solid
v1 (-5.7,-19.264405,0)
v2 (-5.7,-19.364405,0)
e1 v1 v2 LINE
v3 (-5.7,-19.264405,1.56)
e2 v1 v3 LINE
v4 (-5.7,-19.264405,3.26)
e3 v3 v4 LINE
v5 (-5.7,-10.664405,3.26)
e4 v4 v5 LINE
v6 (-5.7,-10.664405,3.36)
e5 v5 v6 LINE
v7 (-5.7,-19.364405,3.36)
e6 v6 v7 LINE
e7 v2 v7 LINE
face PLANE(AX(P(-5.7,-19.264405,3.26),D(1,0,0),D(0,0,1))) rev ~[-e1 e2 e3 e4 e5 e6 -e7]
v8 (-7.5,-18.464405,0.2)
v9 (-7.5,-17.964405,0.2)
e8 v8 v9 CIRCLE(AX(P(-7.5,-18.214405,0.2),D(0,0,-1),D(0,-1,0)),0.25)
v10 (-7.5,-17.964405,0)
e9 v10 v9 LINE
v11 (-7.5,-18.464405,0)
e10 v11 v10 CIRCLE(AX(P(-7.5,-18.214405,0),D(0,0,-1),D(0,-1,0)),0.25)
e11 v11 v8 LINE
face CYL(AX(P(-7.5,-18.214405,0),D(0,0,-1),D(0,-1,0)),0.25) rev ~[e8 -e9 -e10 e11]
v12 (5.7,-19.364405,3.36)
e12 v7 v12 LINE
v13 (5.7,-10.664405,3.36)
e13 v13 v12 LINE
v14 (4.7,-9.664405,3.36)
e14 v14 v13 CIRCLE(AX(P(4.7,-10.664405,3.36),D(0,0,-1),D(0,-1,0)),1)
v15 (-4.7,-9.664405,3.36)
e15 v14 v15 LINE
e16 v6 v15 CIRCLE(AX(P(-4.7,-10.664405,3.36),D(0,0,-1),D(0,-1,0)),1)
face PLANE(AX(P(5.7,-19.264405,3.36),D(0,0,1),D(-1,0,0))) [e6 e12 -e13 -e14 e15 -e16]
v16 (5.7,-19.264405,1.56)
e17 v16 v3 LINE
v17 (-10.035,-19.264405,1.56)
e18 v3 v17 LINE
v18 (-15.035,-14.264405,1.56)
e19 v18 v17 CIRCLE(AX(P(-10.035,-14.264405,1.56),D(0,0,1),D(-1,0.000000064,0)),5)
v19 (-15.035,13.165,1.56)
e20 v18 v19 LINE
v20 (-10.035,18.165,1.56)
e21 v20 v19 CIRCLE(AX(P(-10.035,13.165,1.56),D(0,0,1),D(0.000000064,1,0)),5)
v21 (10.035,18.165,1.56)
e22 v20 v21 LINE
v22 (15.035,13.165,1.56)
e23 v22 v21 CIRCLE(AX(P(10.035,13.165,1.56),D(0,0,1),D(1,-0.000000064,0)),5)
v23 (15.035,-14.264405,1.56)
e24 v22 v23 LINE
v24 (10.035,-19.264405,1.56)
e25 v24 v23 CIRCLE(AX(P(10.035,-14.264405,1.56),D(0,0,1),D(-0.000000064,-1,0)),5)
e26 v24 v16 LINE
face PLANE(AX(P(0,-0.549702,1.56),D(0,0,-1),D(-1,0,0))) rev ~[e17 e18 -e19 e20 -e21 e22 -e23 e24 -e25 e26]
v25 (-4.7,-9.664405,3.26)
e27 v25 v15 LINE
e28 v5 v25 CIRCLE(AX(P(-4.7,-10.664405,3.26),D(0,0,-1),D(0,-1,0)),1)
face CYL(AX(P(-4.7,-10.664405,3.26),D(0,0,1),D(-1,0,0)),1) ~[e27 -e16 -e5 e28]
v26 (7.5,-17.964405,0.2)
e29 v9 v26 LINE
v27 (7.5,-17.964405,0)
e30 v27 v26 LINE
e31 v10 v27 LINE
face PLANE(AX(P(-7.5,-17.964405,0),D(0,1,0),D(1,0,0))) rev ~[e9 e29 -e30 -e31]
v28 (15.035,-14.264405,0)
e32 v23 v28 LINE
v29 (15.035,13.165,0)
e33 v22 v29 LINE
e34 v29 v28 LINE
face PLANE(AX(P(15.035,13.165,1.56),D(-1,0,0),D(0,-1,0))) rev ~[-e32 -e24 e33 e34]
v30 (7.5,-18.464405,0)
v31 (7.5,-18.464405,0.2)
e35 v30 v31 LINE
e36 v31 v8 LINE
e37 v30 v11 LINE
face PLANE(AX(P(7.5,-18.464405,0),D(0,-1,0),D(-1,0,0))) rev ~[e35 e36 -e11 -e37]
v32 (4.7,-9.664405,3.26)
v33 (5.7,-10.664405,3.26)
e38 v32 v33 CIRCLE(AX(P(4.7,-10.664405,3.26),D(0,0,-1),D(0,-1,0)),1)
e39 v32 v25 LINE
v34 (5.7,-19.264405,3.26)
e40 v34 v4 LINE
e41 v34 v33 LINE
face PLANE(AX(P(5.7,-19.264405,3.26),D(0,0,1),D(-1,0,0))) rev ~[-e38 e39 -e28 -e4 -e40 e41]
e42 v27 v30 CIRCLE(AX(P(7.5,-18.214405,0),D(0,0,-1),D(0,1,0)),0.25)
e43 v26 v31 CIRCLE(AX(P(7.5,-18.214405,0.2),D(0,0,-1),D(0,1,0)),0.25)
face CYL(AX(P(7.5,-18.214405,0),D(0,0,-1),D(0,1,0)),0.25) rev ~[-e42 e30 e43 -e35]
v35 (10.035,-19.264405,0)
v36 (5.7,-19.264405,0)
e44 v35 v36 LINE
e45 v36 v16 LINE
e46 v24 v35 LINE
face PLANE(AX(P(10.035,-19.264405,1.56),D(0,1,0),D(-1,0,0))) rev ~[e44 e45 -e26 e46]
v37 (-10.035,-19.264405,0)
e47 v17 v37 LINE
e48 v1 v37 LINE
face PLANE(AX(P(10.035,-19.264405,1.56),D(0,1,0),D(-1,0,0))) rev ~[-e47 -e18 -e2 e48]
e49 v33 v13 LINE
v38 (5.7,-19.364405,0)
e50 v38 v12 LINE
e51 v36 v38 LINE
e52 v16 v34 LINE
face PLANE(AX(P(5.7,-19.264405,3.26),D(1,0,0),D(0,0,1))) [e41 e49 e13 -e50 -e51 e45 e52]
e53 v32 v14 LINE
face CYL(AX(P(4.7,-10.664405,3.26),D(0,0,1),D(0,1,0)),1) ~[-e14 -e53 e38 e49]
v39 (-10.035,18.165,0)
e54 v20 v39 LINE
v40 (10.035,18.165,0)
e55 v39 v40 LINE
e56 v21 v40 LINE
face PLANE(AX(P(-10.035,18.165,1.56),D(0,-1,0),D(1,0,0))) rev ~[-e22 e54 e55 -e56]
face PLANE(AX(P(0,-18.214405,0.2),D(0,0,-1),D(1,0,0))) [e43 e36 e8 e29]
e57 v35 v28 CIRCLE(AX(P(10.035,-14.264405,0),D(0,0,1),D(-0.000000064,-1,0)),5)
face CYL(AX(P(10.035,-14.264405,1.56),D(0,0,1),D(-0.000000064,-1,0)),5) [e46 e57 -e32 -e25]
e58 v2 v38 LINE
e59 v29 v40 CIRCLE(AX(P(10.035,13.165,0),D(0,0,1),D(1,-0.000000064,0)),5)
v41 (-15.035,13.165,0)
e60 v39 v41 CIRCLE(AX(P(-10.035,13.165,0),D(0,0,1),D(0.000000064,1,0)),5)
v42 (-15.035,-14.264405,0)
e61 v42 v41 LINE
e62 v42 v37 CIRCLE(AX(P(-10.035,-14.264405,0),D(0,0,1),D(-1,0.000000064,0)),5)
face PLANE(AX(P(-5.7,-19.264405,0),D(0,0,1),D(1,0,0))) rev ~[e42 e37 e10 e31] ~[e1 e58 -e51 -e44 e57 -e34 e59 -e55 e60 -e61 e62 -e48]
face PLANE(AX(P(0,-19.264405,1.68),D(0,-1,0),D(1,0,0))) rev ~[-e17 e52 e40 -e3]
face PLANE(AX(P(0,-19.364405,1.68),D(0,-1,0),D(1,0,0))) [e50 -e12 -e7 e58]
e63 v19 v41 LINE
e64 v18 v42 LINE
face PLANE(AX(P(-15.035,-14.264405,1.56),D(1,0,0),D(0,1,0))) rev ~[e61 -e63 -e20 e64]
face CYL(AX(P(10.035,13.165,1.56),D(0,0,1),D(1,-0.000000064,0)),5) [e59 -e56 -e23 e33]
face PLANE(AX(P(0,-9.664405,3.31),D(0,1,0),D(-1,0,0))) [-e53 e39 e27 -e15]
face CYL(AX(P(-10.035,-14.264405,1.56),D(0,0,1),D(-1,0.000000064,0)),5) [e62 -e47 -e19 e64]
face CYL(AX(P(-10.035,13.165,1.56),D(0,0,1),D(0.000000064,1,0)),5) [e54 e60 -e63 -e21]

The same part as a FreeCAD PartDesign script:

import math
import FreeCAD as App
import Part
import Sketcher
Q = App.Units.Quantity


def edges_at(feature, points):
    """Names of the edges that pass closest to the given points."""
    edges = feature.Shape.Edges
    near = lambda p: min(range(len(edges)), key=lambda i: edges[i].distToShape(Part.Vertex(*p))[0])
    return sorted({f"Edge{near(p) + 1}" for p in points})

doc = App.newDocument("Part")
body = doc.addObject("PartDesign::Body", "Body")

sketch1 = doc.addObject("Sketcher::SketchObject", "Sketch")
body.addObject(sketch1)
sketch1.AttachmentSupport = (doc.XY_Plane, [""])
sketch1.MapMode = "FlatFace"
sketch1.addGeometry([
    Part.LineSegment(App.Vector(10, 17.2, 0), App.Vector(-10, 17.2, 0)),
    Part.ArcOfCircle(Part.Circle(App.Vector(-10, 13.2, 0), App.Vector(0, 0, 1), 4), math.radians(90), math.radians(180)),
    Part.LineSegment(App.Vector(-14, 13.2, 0), App.Vector(-14, -13.2, 0)),
    Part.ArcOfCircle(Part.Circle(App.Vector(-10, -13.2, 0), App.Vector(0, 0, 1), 4), math.radians(-180), math.radians(-90)),
    Part.LineSegment(App.Vector(-10, -17.2, 0), App.Vector(10, -17.2, 0)),
    Part.ArcOfCircle(Part.Circle(App.Vector(10, -13.2, 0), App.Vector(0, 0, 1), 4), math.radians(-90), math.radians(0)),
    Part.LineSegment(App.Vector(14, -13.2, 0), App.Vector(14, 13.2, 0)),
    Part.ArcOfCircle(Part.Circle(App.Vector(10, 13.2, 0), App.Vector(0, 0, 1), 4), math.radians(0), math.radians(90)),
], False)
sketch1.addConstraint([
    Sketcher.Constraint("Tangent", 0, 2, 1, 1),
    Sketcher.Constraint("Tangent", 1, 2, 2, 1),
    Sketcher.Constraint("Tangent", 2, 2, 3, 1),
    Sketcher.Constraint("Tangent", 3, 2, 4, 1),
    Sketcher.Constraint("Tangent", 4, 2, 5, 1),
    Sketcher.Constraint("Tangent", 5, 2, 6, 1),
    Sketcher.Constraint("Tangent", 6, 2, 7, 1),
    Sketcher.Constraint("Tangent", 7, 2, 0, 1),
    Sketcher.Constraint("Horizontal", 0),
    Sketcher.Constraint("Vertical", 2),
    Sketcher.Constraint("Horizontal", 4),
    Sketcher.Constraint("Vertical", 6),
    Sketcher.Constraint("Equal", 1, 3),
    Sketcher.Constraint("Equal", 3, 5),
    Sketcher.Constraint("Equal", 5, 7),
    Sketcher.Constraint("Symmetric", 1, 3, 5, 3, -1, 1),
    Sketcher.Constraint("Radius", 1, Q("4 mm")),
    Sketcher.Constraint("DistanceX", 0, 2, 0, 1, Q("19.97 mm")),
    Sketcher.Constraint("DistanceY", 2, 2, 2, 1, Q("26.33 mm")),
])
pad1 = doc.addObject("PartDesign::Pad", "Pad")
body.addObject(pad1)
pad1.Profile = sketch1
pad1.Length = 1.56

sketch2 = doc.addObject("Sketcher::SketchObject", "Sketch001")
body.addObject(sketch2)
sketch2.AttachmentSupport = (doc.XY_Plane, [""])
sketch2.MapMode = "FlatFace"
sketch2.AttachmentOffset = App.Placement(App.Vector(0, 0, 1.56), App.Rotation())
sketch2.addGeometry([
    Part.LineSegment(App.Vector(10, 18.2, 0), App.Vector(-10, 18.2, 0)),
    Part.ArcOfCircle(Part.Circle(App.Vector(-10, 13.2, 0), App.Vector(0, 0, 1), 5), math.radians(90), math.radians(180)),
    Part.LineSegment(App.Vector(-15, 13.2, 0), App.Vector(-15, -14.3, 0)),
    Part.ArcOfCircle(Part.Circle(App.Vector(-10, -14.3, 0), App.Vector(0, 0, 1), 5), math.radians(180), math.radians(270)),
    Part.LineSegment(App.Vector(-10, -19.3, 0), App.Vector(10, -19.3, 0)),
    Part.ArcOfCircle(Part.Circle(App.Vector(10, -14.3, 0), App.Vector(0, 0, 1), 5), math.radians(-90), math.radians(0)),
    Part.LineSegment(App.Vector(15, -14.3, 0), App.Vector(15, 13.2, 0)),
    Part.ArcOfCircle(Part.Circle(App.Vector(10, 13.2, 0), App.Vector(0, 0, 1), 5), math.radians(0), math.radians(90)),
], False)
sketch2.addConstraint([
    Sketcher.Constraint("Tangent", 0, 2, 1, 1),
    Sketcher.Constraint("Tangent", 1, 2, 2, 1),
    Sketcher.Constraint("Tangent", 2, 2, 3, 1),
    Sketcher.Constraint("Tangent", 3, 2, 4, 1),
    Sketcher.Constraint("Tangent", 4, 2, 5, 1),
    Sketcher.Constraint("Tangent", 5, 2, 6, 1),
    Sketcher.Constraint("Tangent", 6, 2, 7, 1),
    Sketcher.Constraint("Tangent", 7, 2, 0, 1),
    Sketcher.Constraint("Horizontal", 0),
    Sketcher.Constraint("Vertical", 2),
    Sketcher.Constraint("Horizontal", 4),
    Sketcher.Constraint("Vertical", 6),
    Sketcher.Constraint("Equal", 1, 3),
    Sketcher.Constraint("Equal", 3, 5),
    Sketcher.Constraint("Equal", 5, 7),
    Sketcher.Constraint("Radius", 1, Q("5 mm")),
    Sketcher.Constraint("DistanceX", 0, 2, 0, 1, Q("20.07 mm")),
    Sketcher.Constraint("DistanceX", 1, 3, -1, 1, Q("10.035 mm")),
    Sketcher.Constraint("DistanceY", -1, 1, 1, 3, Q("13.165 mm")),
    Sketcher.Constraint("DistanceY", 2, 2, 2, 1, Q("27.429405 mm")),
])
pad2 = doc.addObject("PartDesign::Pad", "Pad001")
body.addObject(pad2)
pad2.Profile = sketch2
pad2.Length = 1.56
pad2.Reversed = True

sketch3 = doc.addObject("Sketcher::SketchObject", "Sketch002")
body.addObject(sketch3)
sketch3.AttachmentSupport = (doc.XZ_Plane, [""])
sketch3.MapMode = "FlatFace"
sketch3.AttachmentOffset = App.Placement(App.Vector(0, 0, 19.264405), App.Rotation())
sketch3.addGeometry([
    Part.LineSegment(App.Vector(-5.7, 3.4, 0), App.Vector(-5.7, 0, 0)),
    Part.LineSegment(App.Vector(-5.7, 0, 0), App.Vector(5.7, 0, 0)),
    Part.LineSegment(App.Vector(5.7, 0, 0), App.Vector(5.7, 3.4, 0)),
    Part.LineSegment(App.Vector(5.7, 3.4, 0), App.Vector(-5.7, 3.4, 0)),
], False)
sketch3.addConstraint([
    Sketcher.Constraint("Coincident", 0, 2, 1, 1),
    Sketcher.Constraint("Coincident", 1, 2, 2, 1),
    Sketcher.Constraint("Coincident", 2, 2, 3, 1),
    Sketcher.Constraint("Coincident", 3, 2, 0, 1),
    Sketcher.Constraint("Vertical", 0),
    Sketcher.Constraint("Horizontal", 1),
    Sketcher.Constraint("Vertical", 2),
    Sketcher.Constraint("Horizontal", 3),
    Sketcher.Constraint("Symmetric", 0, 2, 1, 2, -1, 1),
    Sketcher.Constraint("DistanceX", 1, 1, 1, 2, Q("11.4 mm")),
    Sketcher.Constraint("DistanceY", 0, 2, 0, 1, Q("3.36 mm")),
])
pad3 = doc.addObject("PartDesign::Pad", "Pad002")
body.addObject(pad3)
pad3.Profile = sketch3
pad3.Length = 0.1

sketch4 = doc.addObject("Sketcher::SketchObject", "Sketch003")
body.addObject(sketch4)
sketch4.AttachmentSupport = (doc.XZ_Plane, [""])
sketch4.MapMode = "FlatFace"
sketch4.AttachmentOffset = App.Placement(App.Vector(0, 0, 19.264405), App.Rotation())
sketch4.addGeometry([
    Part.LineSegment(App.Vector(5.7, 3.36, 0), App.Vector(5.7, 3.26, 0)),
    Part.LineSegment(App.Vector(5.7, 3.26, 0), App.Vector(-5.7, 3.26, 0)),
    Part.LineSegment(App.Vector(-5.7, 3.26, 0), App.Vector(-5.7, 3.36, 0)),
    Part.LineSegment(App.Vector(-5.7, 3.36, 0), App.Vector(5.7, 3.36, 0)),
], False)
sketch4.addConstraint([
    Sketcher.Constraint("Coincident", 0, 2, 1, 1),
    Sketcher.Constraint("Coincident", 1, 2, 2, 1),
    Sketcher.Constraint("Coincident", 2, 2, 3, 1),
    Sketcher.Constraint("Coincident", 3, 2, 0, 1),
    Sketcher.Constraint("Vertical", 0),
    Sketcher.Constraint("Horizontal", 1),
    Sketcher.Constraint("Vertical", 2),
    Sketcher.Constraint("Horizontal", 3),
    Sketcher.Constraint("DistanceX", 1, 2, 1, 1, Q("11.4 mm")),
    Sketcher.Constraint("DistanceY", 0, 2, 0, 1, Q("0.1 mm")),
    Sketcher.Constraint("DistanceX", -1, 1, 0, 2, Q("5.7 mm")),
    Sketcher.Constraint("DistanceY", -1, 1, 0, 2, Q("3.26 mm")),
])
pad4 = doc.addObject("PartDesign::Pad", "Pad003")
body.addObject(pad4)
pad4.Profile = sketch4
pad4.Length = 9.6
pad4.Reversed = True
doc.recompute()

fillet = doc.addObject("PartDesign::Fillet", "Fillet")
body.addObject(fillet)
fillet.Base = (pad4, edges_at(pad4, [(-5.7, -9.664, 3.31)]))
fillet.Radius = 1
doc.recompute()

fillet2 = doc.addObject("PartDesign::Fillet", "Fillet001")
body.addObject(fillet2)
fillet2.Base = (fillet, edges_at(fillet, [(5.7, -9.664, 3.31)]))
fillet2.Radius = 1

sketch5 = doc.addObject("Sketcher::SketchObject", "Sketch004")
body.addObject(sketch5)
sketch5.AttachmentSupport = (doc.XY_Plane, [""])
sketch5.MapMode = "FlatFace"
sketch5.addGeometry([
    Part.ArcOfCircle(Part.Circle(App.Vector(-7.5, -18.21, 0), App.Vector(0, 0, 1), 0.25), math.radians(90), math.radians(270)),
    Part.LineSegment(App.Vector(-7.5, -17.96, 0), App.Vector(7.5, -17.96, 0)),
    Part.ArcOfCircle(Part.Circle(App.Vector(7.5, -18.21, 0), App.Vector(0, 0, 1), 0.25), math.radians(-90), math.radians(90)),
    Part.LineSegment(App.Vector(7.5, -18.46, 0), App.Vector(-7.5, -18.46, 0)),
], False)
sketch5.addConstraint([
    Sketcher.Constraint("Tangent", 0, 1, 1, 1),
    Sketcher.Constraint("Tangent", 1, 2, 2, 2),
    Sketcher.Constraint("Tangent", 2, 1, 3, 1),
    Sketcher.Constraint("Tangent", 3, 2, 0, 2),
    Sketcher.Constraint("Horizontal", 1),
    Sketcher.Constraint("Horizontal", 3),
    Sketcher.Constraint("DistanceX", 1, 1, 1, 2, Q("15 mm")),
    Sketcher.Constraint("Radius", 0, Q("0.25 mm")),
    Sketcher.Constraint("DistanceX", 0, 3, -1, 1, Q("7.5 mm")),
    Sketcher.Constraint("DistanceY", 0, 3, -1, 1, Q("18.214405 mm")),
])
pocket1 = doc.addObject("PartDesign::Pocket", "Pocket")
body.addObject(pocket1)
pocket1.Profile = sketch5
pocket1.Length = 0.2
pocket1.Reversed = True

doc.recompute()
